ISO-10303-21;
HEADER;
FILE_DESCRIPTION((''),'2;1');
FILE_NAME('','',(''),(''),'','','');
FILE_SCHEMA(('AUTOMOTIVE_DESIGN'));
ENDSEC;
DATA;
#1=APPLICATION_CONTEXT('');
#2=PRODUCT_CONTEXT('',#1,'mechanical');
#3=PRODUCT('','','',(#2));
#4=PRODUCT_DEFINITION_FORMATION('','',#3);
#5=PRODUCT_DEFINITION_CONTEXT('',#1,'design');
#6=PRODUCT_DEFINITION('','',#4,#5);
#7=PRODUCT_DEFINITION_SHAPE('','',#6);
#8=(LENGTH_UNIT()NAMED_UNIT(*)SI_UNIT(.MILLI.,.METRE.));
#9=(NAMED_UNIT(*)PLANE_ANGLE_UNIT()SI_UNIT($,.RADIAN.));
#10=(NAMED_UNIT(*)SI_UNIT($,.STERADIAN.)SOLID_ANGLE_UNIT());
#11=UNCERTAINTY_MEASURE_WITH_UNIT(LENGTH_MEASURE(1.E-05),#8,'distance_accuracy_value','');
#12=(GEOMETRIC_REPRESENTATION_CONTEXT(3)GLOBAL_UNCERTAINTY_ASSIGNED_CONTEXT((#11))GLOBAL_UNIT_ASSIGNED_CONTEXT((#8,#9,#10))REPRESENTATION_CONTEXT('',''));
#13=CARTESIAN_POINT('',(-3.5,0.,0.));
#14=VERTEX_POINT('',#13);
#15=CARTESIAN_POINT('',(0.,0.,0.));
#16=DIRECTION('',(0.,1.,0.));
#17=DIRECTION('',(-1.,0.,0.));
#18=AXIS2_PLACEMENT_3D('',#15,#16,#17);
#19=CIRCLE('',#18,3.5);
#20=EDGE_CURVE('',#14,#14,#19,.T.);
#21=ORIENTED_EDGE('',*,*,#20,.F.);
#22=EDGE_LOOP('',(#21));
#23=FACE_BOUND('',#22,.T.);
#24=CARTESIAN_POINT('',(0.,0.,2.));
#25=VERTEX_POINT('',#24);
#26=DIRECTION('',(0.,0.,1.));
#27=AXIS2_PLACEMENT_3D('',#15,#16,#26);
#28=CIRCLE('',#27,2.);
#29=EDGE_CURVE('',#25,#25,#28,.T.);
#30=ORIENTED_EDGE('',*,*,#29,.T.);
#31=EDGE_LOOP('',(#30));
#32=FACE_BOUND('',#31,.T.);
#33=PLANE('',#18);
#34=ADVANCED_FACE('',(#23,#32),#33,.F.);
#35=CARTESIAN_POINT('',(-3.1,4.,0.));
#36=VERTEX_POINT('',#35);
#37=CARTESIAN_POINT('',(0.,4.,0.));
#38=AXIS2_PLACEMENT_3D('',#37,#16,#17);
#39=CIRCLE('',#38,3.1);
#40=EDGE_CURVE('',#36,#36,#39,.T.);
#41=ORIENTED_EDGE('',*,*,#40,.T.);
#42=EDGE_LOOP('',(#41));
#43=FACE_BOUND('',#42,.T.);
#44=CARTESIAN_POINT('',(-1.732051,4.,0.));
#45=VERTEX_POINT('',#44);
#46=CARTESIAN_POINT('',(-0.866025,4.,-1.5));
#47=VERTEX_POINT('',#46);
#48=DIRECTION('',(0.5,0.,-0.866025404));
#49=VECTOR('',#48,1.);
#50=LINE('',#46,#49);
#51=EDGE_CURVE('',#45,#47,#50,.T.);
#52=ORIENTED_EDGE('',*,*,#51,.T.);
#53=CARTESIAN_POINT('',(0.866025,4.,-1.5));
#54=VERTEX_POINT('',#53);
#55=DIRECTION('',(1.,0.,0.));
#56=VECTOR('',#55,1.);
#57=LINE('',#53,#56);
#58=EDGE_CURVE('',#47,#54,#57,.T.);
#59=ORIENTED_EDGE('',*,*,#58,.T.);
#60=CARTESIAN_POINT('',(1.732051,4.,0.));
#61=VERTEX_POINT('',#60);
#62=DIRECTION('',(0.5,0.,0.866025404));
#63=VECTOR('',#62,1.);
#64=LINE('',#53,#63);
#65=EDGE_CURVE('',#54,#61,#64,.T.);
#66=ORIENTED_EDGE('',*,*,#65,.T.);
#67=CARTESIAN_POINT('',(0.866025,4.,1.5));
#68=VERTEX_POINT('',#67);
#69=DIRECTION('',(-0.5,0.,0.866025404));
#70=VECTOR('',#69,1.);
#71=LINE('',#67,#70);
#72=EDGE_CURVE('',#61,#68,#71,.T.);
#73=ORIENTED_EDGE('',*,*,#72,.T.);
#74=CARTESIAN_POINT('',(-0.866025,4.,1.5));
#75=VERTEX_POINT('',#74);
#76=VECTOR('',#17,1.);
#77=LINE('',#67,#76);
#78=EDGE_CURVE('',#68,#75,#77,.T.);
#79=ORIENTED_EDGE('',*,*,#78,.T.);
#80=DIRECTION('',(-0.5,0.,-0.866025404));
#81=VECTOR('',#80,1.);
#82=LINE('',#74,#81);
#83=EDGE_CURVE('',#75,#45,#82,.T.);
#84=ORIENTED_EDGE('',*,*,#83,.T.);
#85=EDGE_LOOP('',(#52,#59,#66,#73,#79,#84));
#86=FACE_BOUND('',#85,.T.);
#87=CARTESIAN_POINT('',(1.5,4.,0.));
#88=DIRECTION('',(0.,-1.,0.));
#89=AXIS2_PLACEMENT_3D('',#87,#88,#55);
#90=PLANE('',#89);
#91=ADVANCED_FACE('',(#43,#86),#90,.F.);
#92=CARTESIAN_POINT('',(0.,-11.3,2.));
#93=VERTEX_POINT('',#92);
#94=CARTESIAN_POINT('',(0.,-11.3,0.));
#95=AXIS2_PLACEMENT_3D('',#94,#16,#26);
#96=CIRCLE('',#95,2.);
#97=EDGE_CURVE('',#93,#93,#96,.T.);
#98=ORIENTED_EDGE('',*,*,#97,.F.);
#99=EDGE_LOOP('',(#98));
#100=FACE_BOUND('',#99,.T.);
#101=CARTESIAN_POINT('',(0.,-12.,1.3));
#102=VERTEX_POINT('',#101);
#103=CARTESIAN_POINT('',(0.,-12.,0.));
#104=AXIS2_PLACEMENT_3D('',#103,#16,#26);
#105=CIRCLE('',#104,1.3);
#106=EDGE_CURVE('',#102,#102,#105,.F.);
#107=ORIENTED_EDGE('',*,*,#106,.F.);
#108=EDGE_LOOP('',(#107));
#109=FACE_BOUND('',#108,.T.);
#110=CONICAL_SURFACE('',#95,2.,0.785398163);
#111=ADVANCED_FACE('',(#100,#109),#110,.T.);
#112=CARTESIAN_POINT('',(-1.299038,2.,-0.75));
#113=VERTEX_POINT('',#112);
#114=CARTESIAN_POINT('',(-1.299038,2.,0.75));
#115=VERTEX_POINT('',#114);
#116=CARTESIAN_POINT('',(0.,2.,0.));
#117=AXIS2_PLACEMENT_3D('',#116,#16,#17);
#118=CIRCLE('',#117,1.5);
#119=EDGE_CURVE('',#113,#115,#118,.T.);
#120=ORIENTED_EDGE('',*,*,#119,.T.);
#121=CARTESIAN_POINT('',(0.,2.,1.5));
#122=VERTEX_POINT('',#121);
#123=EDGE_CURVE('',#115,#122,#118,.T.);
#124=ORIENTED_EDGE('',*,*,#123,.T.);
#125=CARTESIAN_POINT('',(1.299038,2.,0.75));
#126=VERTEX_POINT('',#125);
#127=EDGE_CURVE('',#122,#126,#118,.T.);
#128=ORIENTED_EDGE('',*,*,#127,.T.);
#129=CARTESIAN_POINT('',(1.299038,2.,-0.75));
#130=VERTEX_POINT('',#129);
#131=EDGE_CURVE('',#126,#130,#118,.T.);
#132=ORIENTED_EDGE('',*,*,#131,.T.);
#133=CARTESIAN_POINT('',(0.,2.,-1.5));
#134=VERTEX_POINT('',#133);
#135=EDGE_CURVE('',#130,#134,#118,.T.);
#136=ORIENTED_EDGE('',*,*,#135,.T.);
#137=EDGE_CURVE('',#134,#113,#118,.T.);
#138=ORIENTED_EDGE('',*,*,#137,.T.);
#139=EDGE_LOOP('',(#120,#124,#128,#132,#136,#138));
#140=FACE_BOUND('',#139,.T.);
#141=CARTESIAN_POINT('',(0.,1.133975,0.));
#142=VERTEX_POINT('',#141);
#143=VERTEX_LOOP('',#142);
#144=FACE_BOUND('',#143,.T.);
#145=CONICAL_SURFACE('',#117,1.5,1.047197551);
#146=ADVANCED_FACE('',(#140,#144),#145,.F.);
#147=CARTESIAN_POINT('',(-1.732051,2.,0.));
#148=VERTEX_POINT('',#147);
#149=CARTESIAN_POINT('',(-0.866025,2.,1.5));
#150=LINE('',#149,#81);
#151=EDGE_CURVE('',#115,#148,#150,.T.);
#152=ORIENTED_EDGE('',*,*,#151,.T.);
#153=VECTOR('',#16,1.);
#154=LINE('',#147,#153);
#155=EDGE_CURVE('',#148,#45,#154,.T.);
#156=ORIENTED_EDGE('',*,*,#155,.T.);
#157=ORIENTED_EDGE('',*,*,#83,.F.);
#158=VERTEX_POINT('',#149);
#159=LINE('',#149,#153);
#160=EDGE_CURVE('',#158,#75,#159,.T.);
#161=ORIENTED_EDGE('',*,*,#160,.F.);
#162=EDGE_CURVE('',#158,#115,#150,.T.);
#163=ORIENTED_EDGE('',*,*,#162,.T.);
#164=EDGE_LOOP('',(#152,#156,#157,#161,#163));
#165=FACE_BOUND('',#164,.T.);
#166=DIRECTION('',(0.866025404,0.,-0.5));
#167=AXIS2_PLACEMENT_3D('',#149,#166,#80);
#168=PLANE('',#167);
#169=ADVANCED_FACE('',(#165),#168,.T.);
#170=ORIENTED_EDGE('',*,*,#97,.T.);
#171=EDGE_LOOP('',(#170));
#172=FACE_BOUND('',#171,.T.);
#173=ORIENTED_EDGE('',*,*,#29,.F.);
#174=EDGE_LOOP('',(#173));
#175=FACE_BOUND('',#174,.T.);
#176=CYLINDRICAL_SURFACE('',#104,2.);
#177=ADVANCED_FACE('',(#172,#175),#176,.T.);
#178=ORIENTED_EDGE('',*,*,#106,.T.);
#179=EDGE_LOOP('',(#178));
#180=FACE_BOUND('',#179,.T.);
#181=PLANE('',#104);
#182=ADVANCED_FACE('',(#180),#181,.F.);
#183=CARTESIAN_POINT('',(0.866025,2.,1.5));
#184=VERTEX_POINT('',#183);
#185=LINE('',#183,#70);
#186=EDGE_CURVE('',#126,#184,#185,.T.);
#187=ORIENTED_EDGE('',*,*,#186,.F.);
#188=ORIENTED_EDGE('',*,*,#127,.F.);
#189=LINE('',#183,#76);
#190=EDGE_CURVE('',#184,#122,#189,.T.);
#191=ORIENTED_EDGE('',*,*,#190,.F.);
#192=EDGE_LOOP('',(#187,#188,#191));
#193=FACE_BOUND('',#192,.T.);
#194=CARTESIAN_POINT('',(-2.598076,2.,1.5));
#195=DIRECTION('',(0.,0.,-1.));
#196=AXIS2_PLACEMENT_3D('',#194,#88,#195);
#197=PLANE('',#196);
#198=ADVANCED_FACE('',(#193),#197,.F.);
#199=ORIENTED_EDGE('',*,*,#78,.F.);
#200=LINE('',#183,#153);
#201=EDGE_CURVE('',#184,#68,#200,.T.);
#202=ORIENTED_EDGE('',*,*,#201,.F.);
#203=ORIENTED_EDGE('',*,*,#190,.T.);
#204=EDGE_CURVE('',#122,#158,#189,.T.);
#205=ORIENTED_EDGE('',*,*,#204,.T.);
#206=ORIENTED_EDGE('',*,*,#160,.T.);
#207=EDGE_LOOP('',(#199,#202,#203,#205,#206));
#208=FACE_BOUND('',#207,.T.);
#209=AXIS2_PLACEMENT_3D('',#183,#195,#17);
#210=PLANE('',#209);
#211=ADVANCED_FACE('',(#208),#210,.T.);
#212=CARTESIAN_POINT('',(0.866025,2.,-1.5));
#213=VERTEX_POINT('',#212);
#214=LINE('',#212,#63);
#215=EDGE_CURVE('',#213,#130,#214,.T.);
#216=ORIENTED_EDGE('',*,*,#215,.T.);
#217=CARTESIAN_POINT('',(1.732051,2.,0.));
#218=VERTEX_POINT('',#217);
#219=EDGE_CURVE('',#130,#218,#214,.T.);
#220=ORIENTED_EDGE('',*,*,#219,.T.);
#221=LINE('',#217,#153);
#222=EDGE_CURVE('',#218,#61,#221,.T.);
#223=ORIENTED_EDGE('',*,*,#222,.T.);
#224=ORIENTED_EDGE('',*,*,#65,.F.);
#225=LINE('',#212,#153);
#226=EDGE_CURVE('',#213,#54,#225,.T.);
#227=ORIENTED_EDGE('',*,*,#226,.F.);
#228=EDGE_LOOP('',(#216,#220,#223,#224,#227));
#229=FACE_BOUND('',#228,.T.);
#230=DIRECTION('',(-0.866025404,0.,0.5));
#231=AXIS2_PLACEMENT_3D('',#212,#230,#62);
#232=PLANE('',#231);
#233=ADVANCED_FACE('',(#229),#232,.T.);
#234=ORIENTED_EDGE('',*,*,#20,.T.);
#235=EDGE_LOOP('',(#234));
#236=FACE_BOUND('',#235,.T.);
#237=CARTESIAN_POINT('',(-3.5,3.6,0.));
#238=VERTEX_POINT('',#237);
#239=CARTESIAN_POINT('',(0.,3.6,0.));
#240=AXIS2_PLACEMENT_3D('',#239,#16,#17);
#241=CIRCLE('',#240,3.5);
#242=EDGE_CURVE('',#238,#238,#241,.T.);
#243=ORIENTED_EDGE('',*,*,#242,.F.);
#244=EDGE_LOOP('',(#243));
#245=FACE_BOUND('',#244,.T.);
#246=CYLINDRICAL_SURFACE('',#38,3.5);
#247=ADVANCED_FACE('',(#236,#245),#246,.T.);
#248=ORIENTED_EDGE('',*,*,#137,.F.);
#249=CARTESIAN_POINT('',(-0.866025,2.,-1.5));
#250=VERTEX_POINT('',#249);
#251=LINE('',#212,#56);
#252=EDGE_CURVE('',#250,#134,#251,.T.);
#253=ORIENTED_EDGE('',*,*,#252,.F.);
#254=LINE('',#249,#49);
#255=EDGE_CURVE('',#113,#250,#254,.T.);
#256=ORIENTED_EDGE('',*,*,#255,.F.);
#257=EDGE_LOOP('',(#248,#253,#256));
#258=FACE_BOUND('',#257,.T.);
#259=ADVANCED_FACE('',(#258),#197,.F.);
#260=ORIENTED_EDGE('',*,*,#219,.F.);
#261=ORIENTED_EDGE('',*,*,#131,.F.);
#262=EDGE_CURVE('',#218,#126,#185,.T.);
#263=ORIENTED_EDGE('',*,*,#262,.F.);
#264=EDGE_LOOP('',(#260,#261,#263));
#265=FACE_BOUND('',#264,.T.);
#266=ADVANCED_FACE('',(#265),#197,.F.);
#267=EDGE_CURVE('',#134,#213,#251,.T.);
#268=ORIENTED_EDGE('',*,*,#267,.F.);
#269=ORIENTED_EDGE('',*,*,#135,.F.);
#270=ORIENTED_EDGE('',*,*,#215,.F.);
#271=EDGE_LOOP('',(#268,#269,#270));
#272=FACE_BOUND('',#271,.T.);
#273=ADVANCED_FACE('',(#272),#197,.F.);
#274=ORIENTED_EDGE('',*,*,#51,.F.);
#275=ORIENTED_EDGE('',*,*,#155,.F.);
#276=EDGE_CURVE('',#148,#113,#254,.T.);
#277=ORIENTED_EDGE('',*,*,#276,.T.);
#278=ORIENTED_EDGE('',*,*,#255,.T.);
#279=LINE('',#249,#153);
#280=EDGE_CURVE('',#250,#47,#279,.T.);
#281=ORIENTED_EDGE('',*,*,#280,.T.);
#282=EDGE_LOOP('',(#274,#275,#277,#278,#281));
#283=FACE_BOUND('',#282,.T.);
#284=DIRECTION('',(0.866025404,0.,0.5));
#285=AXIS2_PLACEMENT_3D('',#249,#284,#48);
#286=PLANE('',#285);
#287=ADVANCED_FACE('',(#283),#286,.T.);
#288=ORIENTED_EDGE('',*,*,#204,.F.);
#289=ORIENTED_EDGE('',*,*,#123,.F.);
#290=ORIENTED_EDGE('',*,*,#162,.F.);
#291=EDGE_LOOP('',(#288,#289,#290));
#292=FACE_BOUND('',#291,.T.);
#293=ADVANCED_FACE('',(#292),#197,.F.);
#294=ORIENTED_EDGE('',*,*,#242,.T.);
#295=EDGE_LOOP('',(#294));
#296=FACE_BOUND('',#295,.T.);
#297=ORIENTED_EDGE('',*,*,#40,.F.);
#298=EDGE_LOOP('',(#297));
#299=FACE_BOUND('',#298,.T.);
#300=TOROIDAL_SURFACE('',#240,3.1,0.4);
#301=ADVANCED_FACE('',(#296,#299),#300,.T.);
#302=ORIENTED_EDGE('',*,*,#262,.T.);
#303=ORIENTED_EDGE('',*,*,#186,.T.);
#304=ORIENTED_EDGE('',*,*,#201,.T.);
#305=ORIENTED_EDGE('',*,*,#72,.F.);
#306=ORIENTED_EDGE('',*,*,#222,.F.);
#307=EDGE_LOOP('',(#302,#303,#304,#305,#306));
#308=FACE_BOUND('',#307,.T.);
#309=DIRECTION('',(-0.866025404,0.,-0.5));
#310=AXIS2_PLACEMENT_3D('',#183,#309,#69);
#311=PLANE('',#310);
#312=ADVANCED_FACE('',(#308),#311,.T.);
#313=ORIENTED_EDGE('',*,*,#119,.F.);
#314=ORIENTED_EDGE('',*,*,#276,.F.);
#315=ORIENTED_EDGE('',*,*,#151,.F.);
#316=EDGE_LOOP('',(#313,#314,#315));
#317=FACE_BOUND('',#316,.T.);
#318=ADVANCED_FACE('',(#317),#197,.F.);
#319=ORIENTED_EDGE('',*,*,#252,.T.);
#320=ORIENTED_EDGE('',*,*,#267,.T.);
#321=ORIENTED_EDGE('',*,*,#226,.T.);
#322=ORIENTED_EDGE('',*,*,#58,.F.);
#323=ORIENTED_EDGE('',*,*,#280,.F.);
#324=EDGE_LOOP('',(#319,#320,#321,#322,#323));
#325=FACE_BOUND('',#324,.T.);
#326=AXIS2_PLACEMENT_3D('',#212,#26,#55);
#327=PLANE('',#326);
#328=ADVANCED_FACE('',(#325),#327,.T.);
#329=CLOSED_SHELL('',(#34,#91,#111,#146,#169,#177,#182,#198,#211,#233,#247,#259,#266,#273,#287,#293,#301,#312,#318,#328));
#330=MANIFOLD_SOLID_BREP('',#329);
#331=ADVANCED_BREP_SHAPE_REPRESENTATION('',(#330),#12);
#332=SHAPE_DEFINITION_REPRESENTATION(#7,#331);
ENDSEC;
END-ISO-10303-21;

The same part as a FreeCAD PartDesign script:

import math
import FreeCAD as App
import Part
import Sketcher
Q = App.Units.Quantity


def edges_at(feature, points):
    """Names of the edges that pass closest to the given points."""
    edges = feature.Shape.Edges
    near = lambda p: min(range(len(edges)), key=lambda i: edges[i].distToShape(Part.Vertex(*p))[0])
    return sorted({f"Edge{near(p) + 1}" for p in points})

doc = App.newDocument("Part")
body = doc.addObject("PartDesign::Body", "Body")

# Sketch on XZ plane
sketch1 = body.newObject("Sketcher::SketchObject", "Sketch")
sketch1.AttachmentSupport = (doc.getObject("XZ_Plane"), [""])
sketch1.MapMode = "FlatFace"
sketch1.AttachmentOffset = App.Placement(App.Vector(0, 0, 12), App.Rotation())
sketch1.addGeometry(Part.Circle(App.Vector(0, 0, 0), App.Vector(0, 0, 1), 2), False)
sketch1.addConstraint([
    Sketcher.Constraint("Coincident", 0, 3, -1, 1),
    Sketcher.Constraint("Diameter", 0, Q("4 mm")),
])
pad1 = body.newObject("PartDesign::Pad", "Pad")
pad1.Profile = sketch1
pad1.Length = 12
pad1.Reversed = True
doc.recompute()

chamfer = body.newObject("PartDesign::Chamfer", "Chamfer")
chamfer.Base = (pad1, edges_at(pad1, [(0, -12, -2)]))
chamfer.Size = 0.7

# Sketch on XY plane
sketch2 = body.newObject("Sketcher::SketchObject", "Sketch001")
sketch2.AttachmentSupport = (doc.getObject("XY_Plane"), [""])
sketch2.MapMode = "FlatFace"
sketch2.addGeometry([
    Part.LineSegment(App.Vector(1.5, 4, 0), App.Vector(1.5, 2, 0)),  # 0
    Part.LineSegment(App.Vector(1.5, 2, 0), App.Vector(0, 1.13, 0)),  # 1
    Part.LineSegment(App.Vector(0, 1.13, 0), App.Vector(0, 0, 0)),  # 2
    Part.LineSegment(App.Vector(0, 0, 0), App.Vector(3.5, 0, 0)),  # 3
    Part.LineSegment(App.Vector(3.5, 0, 0), App.Vector(3.5, 3.6, 0)),  # 4
    Part.ArcOfCircle(Part.Circle(App.Vector(3.1, 3.6, 0), App.Vector(0, 0, 1), 0.4), math.radians(0), math.radians(90)),  # 5
    Part.LineSegment(App.Vector(3.1, 4, 0), App.Vector(1.5, 4, 0)),  # 6
], False)
sketch2.addConstraint([
    Sketcher.Constraint("Coincident", 0, 2, 1, 1),
    Sketcher.Constraint("Coincident", 1, 2, 2, 1),
    Sketcher.Constraint("Coincident", 2, 2, 3, 1),
    Sketcher.Constraint("Coincident", 3, 2, 4, 1),
    Sketcher.Constraint("Tangent", 4, 2, 5, 1),
    Sketcher.Constraint("Tangent", 5, 2, 6, 1),
    Sketcher.Constraint("Coincident", 6, 2, 0, 1),
    Sketcher.Constraint("Vertical", 0),
    Sketcher.Constraint("Vertical", 2),
    Sketcher.Constraint("Horizontal", 3),
    Sketcher.Constraint("Vertical", 4),
    Sketcher.Constraint("Horizontal", 6),
    Sketcher.Constraint("Coincident", 2, 2, -1, 1),
    Sketcher.Constraint("Radius", 5, Q("0.4 mm")),
    Sketcher.Constraint("DistanceY", 0, 2, 0, 1, Q("2 mm")),
    Sketcher.Constraint("Angle", 1, Q("-150 deg")),
    Sketcher.Constraint("DistanceX", 3, 1, 3, 2, Q("3.5 mm")),
    Sketcher.Constraint("DistanceX", 6, 2, 6, 1, Q("1.6 mm")),
    Sketcher.Constraint("DistanceY", 4, 1, 4, 2, Q("3.6 mm")),
])
revolution = body.newObject("PartDesign::Revolution", "Revolution")
revolution.Profile = sketch2
revolution.ReferenceAxis = (sketch2, ["V_Axis"])
revolution.Angle = 360

# Sketch on XZ plane
sketch3 = body.newObject("Sketcher::SketchObject", "Sketch002")
sketch3.AttachmentSupport = (doc.getObject("XZ_Plane"), [""])
sketch3.MapMode = "FlatFace"
sketch3.AttachmentOffset = App.Placement(App.Vector(0, 0, -4), App.Rotation())
sketch3.addGeometry([
    Part.LineSegment(App.Vector(0.9, 1.5, 0), App.Vector(-0.9, 1.5, 0)),  # 0
    Part.LineSegment(App.Vector(-0.9, 1.5, 0), App.Vector(-1.7, 0, 0)),  # 1
    Part.LineSegment(App.Vector(-1.7, 0, 0), App.Vector(-0.9, -1.5, 0)),  # 2
    Part.LineSegment(App.Vector(-0.9, -1.5, 0), App.Vector(0.9, -1.5, 0)),  # 3
    Part.LineSegment(App.Vector(0.9, -1.5, 0), App.Vector(1.7, 0, 0)),  # 4
    Part.LineSegment(App.Vector(1.7, 0, 0), App.Vector(0.9, 1.5, 0)),  # 5
], False)
sketch3.addConstraint([
    Sketcher.Constraint("Coincident", 0, 2, 1, 1),
    Sketcher.Constraint("Coincident", 1, 2, 2, 1),
    Sketcher.Constraint("Coincident", 2, 2, 3, 1),
    Sketcher.Constraint("Coincident", 3, 2, 4, 1),
    Sketcher.Constraint("Coincident", 4, 2, 5, 1),
    Sketcher.Constraint("Coincident", 5, 2, 0, 1),
    Sketcher.Constraint("Horizontal", 0),
    Sketcher.Constraint("Horizontal", 3),
    Sketcher.Constraint("Symmetric", 0, 2, 3, 2, -1, 1),
    Sketcher.Constraint("Symmetric", 1, 2, 4, 2, -1, 1),
    Sketcher.Constraint("PointOnObject", 1, 2, -1),
    Sketcher.Constraint("Parallel", 2, 5),
    Sketcher.Constraint("Vertical", 0, 2, 2, 2),
    Sketcher.Constraint("Angle", 1, Q("-120 deg")),
    Sketcher.Constraint("DistanceY", 2, 2, 0, 2, Q("3 mm")),
    Sketcher.Constraint("DistanceX", 0, 2, 0, 1, Q("1.732051 mm")),
])
pocket1 = body.newObject("PartDesign::Pocket", "Pocket")
pocket1.Profile = sketch3
pocket1.Length = 2
pocket1.Reversed = True

doc.recompute()
